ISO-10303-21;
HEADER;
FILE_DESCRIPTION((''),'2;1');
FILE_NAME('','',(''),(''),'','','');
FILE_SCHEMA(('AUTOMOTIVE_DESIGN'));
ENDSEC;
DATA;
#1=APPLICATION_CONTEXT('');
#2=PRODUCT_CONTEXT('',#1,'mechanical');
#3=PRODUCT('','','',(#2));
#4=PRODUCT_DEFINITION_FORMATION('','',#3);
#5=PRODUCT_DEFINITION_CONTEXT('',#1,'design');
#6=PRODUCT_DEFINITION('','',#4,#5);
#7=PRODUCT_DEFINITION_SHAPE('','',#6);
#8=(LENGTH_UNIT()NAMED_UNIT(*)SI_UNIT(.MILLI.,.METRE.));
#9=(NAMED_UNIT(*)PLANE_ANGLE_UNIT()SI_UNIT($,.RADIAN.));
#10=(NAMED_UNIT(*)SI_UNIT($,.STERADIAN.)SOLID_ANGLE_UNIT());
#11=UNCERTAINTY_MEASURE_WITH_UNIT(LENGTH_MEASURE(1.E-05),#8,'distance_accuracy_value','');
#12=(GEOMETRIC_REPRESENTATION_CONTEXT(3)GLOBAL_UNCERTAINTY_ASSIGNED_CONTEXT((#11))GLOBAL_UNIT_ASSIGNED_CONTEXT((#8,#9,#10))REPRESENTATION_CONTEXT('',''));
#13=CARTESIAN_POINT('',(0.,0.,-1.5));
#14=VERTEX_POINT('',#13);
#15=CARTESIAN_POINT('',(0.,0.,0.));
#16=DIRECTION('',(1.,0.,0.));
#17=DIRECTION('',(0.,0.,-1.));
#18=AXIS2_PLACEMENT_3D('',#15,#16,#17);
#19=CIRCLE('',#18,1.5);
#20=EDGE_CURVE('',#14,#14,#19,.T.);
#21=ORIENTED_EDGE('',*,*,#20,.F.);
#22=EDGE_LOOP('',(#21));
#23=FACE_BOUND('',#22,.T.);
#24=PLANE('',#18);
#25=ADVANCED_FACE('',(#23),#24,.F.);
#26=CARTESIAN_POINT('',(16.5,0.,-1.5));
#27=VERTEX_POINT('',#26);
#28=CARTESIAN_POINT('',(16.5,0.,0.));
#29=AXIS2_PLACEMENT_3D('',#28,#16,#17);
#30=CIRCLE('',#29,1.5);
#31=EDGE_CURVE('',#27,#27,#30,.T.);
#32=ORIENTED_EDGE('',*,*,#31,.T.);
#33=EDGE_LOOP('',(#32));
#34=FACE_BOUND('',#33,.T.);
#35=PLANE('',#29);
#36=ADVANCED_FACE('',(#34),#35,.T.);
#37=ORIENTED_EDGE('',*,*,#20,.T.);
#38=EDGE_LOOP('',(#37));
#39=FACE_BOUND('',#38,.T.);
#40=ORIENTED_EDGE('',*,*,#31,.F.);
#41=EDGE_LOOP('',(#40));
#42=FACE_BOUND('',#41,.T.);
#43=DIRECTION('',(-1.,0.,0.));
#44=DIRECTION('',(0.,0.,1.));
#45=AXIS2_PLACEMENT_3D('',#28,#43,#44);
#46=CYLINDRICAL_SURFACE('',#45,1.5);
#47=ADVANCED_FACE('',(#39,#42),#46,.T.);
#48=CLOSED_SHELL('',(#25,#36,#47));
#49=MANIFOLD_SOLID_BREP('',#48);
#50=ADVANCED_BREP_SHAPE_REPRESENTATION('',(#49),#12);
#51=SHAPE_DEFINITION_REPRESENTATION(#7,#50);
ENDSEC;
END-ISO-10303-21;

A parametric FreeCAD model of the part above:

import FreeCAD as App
import Part
import Sketcher

doc = App.newDocument("Part")
body = doc.addObject("PartDesign::Body", "Body")

sketch1 = body.newObject("Sketcher::SketchObject", "Sketch")
sketch1.AttachmentSupport = (doc.getObject("YZ_Plane"), [""])
sketch1.MapMode = "FlatFace"
sketch1.addGeometry(Part.Circle(App.Vector(0, 0, 0), App.Vector(0, 0, 1), 1.5), False)
sketch1.addConstraint([
    Sketcher.Constraint("Coincident", 0, 3, -1, 1),
    Sketcher.Constraint("Diameter", 0, 3.0),
])
pad1 = body.newObject("PartDesign::Pad", "Pad")
pad1.Profile = sketch1
pad1.Length = 16.5

doc.recompute()
